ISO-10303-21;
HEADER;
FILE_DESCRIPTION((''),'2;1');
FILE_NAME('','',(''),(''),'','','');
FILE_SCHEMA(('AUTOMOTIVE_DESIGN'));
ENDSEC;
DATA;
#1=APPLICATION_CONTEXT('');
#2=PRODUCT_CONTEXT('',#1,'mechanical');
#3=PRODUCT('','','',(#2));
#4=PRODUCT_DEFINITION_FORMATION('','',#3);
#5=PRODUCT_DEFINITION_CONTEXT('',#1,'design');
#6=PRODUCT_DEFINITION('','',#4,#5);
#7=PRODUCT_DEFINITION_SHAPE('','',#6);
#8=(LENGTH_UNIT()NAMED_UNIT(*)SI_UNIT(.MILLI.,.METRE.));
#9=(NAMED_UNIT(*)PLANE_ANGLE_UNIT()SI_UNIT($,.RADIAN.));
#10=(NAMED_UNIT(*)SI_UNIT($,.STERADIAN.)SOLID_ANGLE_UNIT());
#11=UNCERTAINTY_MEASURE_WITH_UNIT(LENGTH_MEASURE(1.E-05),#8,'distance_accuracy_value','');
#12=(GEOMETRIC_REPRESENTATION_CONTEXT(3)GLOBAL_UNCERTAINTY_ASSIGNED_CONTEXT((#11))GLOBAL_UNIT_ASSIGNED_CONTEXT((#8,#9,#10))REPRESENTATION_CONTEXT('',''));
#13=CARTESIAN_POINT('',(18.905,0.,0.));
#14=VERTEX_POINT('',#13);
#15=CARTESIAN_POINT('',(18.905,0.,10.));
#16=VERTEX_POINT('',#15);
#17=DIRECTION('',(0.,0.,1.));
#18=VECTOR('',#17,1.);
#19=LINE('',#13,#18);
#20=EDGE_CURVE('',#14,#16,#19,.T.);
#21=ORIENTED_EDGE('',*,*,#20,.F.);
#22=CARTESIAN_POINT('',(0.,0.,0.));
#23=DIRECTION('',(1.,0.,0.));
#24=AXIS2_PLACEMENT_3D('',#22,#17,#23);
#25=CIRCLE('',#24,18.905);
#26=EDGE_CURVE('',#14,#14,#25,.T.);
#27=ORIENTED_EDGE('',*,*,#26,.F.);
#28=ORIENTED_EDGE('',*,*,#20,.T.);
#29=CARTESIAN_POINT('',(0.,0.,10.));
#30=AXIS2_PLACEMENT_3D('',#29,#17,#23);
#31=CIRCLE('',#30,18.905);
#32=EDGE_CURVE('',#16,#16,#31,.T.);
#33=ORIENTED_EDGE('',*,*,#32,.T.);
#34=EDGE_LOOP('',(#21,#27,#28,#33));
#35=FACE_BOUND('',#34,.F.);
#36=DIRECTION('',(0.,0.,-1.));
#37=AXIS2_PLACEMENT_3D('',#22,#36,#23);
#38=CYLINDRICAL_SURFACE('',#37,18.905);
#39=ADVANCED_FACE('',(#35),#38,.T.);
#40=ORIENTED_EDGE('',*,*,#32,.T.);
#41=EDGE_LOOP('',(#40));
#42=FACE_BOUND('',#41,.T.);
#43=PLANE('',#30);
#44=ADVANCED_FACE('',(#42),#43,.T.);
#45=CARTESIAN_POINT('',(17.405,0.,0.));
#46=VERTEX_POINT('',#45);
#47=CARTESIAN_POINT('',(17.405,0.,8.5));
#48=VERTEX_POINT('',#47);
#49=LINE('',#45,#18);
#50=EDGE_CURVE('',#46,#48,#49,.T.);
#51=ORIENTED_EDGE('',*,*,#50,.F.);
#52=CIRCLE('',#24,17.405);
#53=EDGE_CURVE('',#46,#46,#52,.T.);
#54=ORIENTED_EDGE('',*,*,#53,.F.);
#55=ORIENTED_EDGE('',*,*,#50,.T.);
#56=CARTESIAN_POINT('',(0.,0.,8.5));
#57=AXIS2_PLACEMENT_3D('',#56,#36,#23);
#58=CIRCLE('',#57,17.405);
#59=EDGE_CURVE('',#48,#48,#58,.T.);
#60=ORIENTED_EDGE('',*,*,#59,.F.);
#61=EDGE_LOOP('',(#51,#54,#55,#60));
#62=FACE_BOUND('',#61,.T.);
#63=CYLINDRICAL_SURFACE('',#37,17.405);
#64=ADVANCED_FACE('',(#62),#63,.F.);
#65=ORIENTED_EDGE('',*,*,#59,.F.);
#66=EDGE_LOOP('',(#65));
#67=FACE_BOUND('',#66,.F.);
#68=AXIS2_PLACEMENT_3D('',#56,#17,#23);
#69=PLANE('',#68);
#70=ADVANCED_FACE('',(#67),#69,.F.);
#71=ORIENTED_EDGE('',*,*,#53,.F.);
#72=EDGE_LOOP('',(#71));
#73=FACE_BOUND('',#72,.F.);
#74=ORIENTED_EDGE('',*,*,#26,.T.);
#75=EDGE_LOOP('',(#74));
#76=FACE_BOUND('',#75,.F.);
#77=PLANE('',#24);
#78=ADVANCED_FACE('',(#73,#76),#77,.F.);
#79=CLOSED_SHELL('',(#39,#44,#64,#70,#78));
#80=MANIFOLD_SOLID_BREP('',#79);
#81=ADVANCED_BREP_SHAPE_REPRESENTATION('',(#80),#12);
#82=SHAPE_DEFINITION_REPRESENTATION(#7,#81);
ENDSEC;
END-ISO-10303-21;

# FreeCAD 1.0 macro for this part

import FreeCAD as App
import Part
import Sketcher

V = App.Vector

doc = App.newDocument("Part")
body = doc.addObject("PartDesign::Body", "Body")

sketch1 = doc.addObject("Sketcher::SketchObject", "Sketch")
body.addObject(sketch1)
sketch1.AttachmentSupport = (doc.XY_Plane, [""])
sketch1.MapMode = "FlatFace"
sketch1.addGeometry(Part.Circle(V(0, 0, 0), V(0, 0, 1), 18.905), False)
sketch1.addGeometry(Part.Circle(V(0, 0, 0), V(0, 0, 1), 17.405), False)
sketch1.addConstraint(Sketcher.Constraint("Coincident", 0, 3, -1, 1))
sketch1.addConstraint(Sketcher.Constraint("Coincident", 1, 3, -1, 1))
sketch1.addConstraint(Sketcher.Constraint("Diameter", 0, 37.81))
sketch1.addConstraint(Sketcher.Constraint("Diameter", 1, 34.81))
pad1 = doc.addObject("PartDesign::Pad", "Pad")
body.addObject(pad1)
pad1.Profile = sketch1
pad1.Length = 10

sketch2 = doc.addObject("Sketcher::SketchObject", "Sketch001")
body.addObject(sketch2)
sketch2.AttachmentSupport = (doc.XY_Plane, [""])
sketch2.MapMode = "FlatFace"
sketch2.AttachmentOffset = App.Placement(V(0, 0, 10), App.Rotation())
sketch2.addGeometry(Part.Circle(V(0, 0, 0), V(0, 0, 1), 18.905), False)
sketch2.addConstraint(Sketcher.Constraint("Coincident", 0, 3, -1, 1))
sketch2.addConstraint(Sketcher.Constraint("Diameter", 0, 37.81))
pad2 = doc.addObject("PartDesign::Pad", "Pad001")
body.addObject(pad2)
pad2.Profile = sketch2
pad2.Length = 1.5
pad2.Reversed = True

doc.recompute()
